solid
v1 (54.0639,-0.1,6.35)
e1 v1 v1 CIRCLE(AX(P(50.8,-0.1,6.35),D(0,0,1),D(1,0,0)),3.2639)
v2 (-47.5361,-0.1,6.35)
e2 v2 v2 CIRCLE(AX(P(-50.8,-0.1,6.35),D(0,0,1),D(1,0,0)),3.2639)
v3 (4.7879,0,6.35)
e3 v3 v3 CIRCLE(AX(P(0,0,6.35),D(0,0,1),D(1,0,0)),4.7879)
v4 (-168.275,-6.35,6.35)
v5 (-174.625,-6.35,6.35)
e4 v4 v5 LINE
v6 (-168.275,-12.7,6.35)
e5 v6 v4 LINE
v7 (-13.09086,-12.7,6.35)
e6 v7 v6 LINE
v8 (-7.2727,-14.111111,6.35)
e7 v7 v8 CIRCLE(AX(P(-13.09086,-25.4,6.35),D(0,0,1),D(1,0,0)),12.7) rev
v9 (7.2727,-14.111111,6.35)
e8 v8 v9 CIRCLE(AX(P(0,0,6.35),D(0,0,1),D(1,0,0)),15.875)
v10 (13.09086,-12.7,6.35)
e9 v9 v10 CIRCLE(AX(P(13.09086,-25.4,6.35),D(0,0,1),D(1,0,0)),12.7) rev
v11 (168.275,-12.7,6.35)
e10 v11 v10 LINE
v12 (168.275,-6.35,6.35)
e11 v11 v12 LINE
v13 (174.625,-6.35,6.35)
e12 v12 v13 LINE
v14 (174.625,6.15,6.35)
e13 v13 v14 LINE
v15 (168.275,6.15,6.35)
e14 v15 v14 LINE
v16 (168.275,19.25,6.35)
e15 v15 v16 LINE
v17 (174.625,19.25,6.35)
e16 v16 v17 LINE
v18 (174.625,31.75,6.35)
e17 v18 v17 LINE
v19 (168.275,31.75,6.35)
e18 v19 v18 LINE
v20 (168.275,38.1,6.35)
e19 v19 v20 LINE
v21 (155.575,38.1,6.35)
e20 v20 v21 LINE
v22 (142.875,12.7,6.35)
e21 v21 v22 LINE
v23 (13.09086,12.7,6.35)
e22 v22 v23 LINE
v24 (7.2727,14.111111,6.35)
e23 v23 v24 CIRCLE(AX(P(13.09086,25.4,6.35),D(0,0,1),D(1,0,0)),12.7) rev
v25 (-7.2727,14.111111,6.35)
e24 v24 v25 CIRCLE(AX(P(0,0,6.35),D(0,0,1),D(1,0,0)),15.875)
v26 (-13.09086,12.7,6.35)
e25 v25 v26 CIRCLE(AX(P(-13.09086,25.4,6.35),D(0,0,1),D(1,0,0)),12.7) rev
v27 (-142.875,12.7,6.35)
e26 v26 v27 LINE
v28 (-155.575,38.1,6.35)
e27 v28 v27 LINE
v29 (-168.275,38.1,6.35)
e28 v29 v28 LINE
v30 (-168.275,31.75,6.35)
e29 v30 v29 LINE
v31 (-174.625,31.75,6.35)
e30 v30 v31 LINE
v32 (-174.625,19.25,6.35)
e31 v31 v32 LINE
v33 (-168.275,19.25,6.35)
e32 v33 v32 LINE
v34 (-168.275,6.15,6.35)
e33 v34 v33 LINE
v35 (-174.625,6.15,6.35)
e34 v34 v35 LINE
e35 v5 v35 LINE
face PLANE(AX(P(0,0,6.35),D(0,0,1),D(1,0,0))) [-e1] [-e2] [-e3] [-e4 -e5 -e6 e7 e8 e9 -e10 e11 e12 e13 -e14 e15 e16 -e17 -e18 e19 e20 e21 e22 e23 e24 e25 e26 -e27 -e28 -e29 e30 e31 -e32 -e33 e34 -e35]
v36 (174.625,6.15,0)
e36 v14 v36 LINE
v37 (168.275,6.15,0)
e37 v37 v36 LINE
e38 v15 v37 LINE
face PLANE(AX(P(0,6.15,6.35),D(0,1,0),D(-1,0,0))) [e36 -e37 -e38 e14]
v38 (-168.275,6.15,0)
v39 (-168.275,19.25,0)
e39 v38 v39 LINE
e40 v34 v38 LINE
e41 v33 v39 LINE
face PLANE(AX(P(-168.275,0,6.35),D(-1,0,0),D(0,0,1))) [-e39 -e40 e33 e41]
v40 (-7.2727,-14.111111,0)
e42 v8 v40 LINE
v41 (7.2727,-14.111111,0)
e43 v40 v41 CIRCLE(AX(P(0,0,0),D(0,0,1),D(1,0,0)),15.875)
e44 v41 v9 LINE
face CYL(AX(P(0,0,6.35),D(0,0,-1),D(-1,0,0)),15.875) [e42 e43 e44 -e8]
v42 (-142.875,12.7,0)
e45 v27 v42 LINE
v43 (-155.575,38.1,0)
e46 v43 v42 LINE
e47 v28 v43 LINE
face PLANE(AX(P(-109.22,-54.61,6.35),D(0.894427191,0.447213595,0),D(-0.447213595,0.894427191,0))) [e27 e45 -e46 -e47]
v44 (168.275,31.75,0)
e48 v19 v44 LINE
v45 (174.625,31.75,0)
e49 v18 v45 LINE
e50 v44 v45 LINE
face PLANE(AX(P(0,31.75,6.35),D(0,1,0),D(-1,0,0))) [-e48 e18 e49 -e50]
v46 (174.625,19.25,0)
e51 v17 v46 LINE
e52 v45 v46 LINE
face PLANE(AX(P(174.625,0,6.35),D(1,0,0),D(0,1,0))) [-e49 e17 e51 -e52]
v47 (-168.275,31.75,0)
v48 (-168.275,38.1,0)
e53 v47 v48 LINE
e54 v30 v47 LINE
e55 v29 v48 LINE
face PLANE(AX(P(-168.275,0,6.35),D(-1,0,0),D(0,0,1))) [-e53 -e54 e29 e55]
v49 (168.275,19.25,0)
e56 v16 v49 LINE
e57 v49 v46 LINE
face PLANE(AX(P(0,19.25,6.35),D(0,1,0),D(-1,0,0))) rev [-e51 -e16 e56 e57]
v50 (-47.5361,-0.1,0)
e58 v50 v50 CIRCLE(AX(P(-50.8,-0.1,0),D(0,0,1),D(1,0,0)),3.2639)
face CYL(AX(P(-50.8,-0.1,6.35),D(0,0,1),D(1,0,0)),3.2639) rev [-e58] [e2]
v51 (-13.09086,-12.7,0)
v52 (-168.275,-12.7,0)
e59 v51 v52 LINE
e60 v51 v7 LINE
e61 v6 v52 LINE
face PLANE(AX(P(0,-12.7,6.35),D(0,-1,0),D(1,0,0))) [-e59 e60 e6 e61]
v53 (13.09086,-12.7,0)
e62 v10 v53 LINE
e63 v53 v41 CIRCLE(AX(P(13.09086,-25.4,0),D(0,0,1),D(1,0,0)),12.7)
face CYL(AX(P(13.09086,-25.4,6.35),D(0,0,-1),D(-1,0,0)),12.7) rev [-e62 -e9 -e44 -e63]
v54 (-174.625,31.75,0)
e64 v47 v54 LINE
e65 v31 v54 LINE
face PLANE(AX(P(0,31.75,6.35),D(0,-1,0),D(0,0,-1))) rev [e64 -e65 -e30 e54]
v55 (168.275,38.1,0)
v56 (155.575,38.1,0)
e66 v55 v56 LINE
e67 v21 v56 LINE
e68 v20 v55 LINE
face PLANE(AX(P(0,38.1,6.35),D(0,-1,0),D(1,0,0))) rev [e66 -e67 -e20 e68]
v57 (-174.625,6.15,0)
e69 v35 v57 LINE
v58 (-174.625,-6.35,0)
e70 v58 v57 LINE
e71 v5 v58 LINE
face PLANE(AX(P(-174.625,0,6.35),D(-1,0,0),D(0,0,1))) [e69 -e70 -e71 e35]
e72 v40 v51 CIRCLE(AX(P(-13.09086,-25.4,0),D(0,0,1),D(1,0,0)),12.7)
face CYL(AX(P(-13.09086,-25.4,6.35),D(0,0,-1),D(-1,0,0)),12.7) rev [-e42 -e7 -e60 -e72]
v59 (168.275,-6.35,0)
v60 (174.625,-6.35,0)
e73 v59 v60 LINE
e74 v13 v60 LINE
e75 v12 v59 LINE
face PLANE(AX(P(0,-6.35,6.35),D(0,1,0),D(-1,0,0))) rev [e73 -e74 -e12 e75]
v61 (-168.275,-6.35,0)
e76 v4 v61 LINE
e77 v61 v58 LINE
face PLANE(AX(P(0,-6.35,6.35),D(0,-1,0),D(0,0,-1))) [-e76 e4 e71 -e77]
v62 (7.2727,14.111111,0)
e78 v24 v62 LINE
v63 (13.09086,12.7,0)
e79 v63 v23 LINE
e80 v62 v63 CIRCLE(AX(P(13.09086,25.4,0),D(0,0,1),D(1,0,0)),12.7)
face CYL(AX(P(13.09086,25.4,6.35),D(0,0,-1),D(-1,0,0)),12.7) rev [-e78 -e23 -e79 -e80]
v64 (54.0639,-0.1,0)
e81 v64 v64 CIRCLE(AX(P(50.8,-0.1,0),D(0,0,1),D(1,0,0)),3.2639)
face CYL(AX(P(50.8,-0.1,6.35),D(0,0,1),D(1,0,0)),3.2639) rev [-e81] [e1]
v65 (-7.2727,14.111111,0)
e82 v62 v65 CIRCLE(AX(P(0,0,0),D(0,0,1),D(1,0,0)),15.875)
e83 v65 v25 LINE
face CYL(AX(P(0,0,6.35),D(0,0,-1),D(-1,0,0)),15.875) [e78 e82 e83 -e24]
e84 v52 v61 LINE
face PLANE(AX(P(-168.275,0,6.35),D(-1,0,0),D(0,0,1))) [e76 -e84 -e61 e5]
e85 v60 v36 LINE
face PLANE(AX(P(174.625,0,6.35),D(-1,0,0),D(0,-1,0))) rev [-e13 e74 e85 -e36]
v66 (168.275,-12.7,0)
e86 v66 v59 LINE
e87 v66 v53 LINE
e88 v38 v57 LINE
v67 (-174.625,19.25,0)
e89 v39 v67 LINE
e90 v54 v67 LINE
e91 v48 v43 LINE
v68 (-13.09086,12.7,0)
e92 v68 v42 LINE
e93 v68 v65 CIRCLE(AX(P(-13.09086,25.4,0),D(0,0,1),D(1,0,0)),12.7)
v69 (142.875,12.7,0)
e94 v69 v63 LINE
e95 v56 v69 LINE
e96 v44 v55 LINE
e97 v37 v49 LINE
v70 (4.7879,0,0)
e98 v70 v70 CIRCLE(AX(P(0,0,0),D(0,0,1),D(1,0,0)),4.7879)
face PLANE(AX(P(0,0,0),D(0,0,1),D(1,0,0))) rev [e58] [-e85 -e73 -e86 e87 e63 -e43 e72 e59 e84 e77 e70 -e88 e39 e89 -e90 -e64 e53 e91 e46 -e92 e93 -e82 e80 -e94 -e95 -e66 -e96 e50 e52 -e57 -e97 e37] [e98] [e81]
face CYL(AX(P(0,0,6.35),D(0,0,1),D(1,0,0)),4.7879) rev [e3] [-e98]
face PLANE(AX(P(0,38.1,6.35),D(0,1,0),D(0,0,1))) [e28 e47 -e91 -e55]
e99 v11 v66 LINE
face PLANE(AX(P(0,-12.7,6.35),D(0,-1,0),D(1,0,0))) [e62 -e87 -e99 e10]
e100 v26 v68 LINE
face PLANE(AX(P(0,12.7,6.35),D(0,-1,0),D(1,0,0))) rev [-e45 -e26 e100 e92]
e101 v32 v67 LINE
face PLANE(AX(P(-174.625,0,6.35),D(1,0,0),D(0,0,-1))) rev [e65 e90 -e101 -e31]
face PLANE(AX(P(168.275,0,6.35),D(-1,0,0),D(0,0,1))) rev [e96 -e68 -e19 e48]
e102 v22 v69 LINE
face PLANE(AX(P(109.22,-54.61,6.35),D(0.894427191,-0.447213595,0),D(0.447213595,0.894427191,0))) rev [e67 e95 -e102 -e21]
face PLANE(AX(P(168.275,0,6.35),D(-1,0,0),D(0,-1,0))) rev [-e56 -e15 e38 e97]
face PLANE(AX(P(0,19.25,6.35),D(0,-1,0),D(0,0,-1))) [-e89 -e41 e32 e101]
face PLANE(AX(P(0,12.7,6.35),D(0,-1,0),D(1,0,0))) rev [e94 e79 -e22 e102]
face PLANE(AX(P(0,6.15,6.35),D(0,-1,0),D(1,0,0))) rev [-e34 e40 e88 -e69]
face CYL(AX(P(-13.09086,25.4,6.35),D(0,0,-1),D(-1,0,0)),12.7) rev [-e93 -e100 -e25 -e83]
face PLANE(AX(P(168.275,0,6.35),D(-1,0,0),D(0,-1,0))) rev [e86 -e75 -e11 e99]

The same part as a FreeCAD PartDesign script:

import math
import FreeCAD as App
import Part
import Sketcher

V = App.Vector
Q = App.Units.Quantity


def edges_at(feature, points):
    """Names of the edges that pass closest to the given points."""
    edges = feature.Shape.Edges
    near = lambda p: min(range(len(edges)), key=lambda i: edges[i].distToShape(Part.Vertex(*p))[0])
    return sorted({f"Edge{near(p) + 1}" for p in points})

doc = App.newDocument("Part")
params = doc.addObject("Spreadsheet::Sheet", "Params")
for row, (alias, value) in enumerate([
    ("sketch1_width", "0.5 in"),
    ("sketch1_radius", "0.625 in"),
    ("sketch1_width2", "0.25 in"),
    ("pad1_length", "0.25 in"),
    ("sketch2_diameter", "0.377 in"),
    ("hole_diameter", "0.377 in"),
    ("fillet_radius", "0.5 in"),
    ("sketch3_diameter", "0.257 in"),
    ("hole2_diameter", "0.257 in"),
], start=1):
    params.set(f"A{row}", alias)
    params.set(f"B{row}", "=" + value)
    params.setAlias(f"B{row}", alias)

body = doc.addObject("PartDesign::Body", "Body")

# Sketch on XY plane
sketch1 = doc.addObject("Sketcher::SketchObject", "Sketch")
body.addObject(sketch1)
sketch1.AttachmentSupport = (doc.XY_Plane, [""])
sketch1.MapMode = "FlatFace"
sketch1.addGeometry(Part.LineSegment(V(-168, -6, 0), V(-168, -13, 0)), False)
sketch1.addGeometry(Part.LineSegment(V(-168, -13, 0), V(-10, -13, 0)), False)
sketch1.addGeometry(Part.ArcOfCircle(Part.Circle(V(0, 0, 0), V(0, 0, 1), 16), math.radians(-127), math.radians(-53)), False)
sketch1.addGeometry(Part.LineSegment(V(10, -13, 0), V(168, -13, 0)), False)
sketch1.addGeometry(Part.LineSegment(V(168, -13, 0), V(168, -6, 0)), False)
sketch1.addGeometry(Part.LineSegment(V(168, -6, 0), V(175, -6, 0)), False)
sketch1.addGeometry(Part.LineSegment(V(175, -6, 0), V(175, 6, 0)), False)
sketch1.addGeometry(Part.LineSegment(V(175, 6, 0), V(168, 6, 0)), False)
sketch1.addGeometry(Part.LineSegment(V(168, 6, 0), V(168, 19, 0)), False)
sketch1.addGeometry(Part.LineSegment(V(168, 19, 0), V(175, 19, 0)), False)
sketch1.addGeometry(Part.LineSegment(V(175, 19, 0), V(175, 32, 0)), False)
sketch1.addGeometry(Part.LineSegment(V(175, 32, 0), V(168, 32, 0)), False)
sketch1.addGeometry(Part.LineSegment(V(168, 32, 0), V(168, 38, 0)), False)
sketch1.addGeometry(Part.LineSegment(V(168, 38, 0), V(156, 38, 0)), False)
sketch1.addGeometry(Part.LineSegment(V(156, 38, 0), V(143, 13, 0)), False)
sketch1.addGeometry(Part.LineSegment(V(143, 13, 0), V(10, 13, 0)), False)
sketch1.addGeometry(Part.ArcOfCircle(Part.Circle(V(0, 0, 0), V(0, 0, 1), 16), math.radians(53), math.radians(127)), False)
sketch1.addGeometry(Part.LineSegment(V(-10, 13, 0), V(-143, 13, 0)), False)
sketch1.addGeometry(Part.LineSegment(V(-143, 13, 0), V(-156, 38, 0)), False)
sketch1.addGeometry(Part.LineSegment(V(-156, 38, 0), V(-168, 38, 0)), False)
sketch1.addGeometry(Part.LineSegment(V(-168, 38, 0), V(-168, 32, 0)), False)
sketch1.addGeometry(Part.LineSegment(V(-168, 32, 0), V(-175, 32, 0)), False)
sketch1.addGeometry(Part.LineSegment(V(-175, 32, 0), V(-175, 19, 0)), False)
sketch1.addGeometry(Part.LineSegment(V(-175, 19, 0), V(-168, 19, 0)), False)
sketch1.addGeometry(Part.LineSegment(V(-168, 19, 0), V(-168, 6, 0)), False)
sketch1.addGeometry(Part.LineSegment(V(-168, 6, 0), V(-175, 6, 0)), False)
sketch1.addGeometry(Part.LineSegment(V(-175, 6, 0), V(-175, -6, 0)), False)
sketch1.addGeometry(Part.LineSegment(V(-175, -6, 0), V(-168, -6, 0)), False)
sketch1.addConstraint(Sketcher.Constraint("Coincident", 0, 2, 1, 1))
sketch1.addConstraint(Sketcher.Constraint("Coincident", 1, 2, 2, 1))
sketch1.addConstraint(Sketcher.Constraint("Coincident", 2, 2, 3, 1))
sketch1.addConstraint(Sketcher.Constraint("Coincident", 3, 2, 4, 1))
sketch1.addConstraint(Sketcher.Constraint("Coincident", 4, 2, 5, 1))
sketch1.addConstraint(Sketcher.Constraint("Coincident", 5, 2, 6, 1))
sketch1.addConstraint(Sketcher.Constraint("Coincident", 6, 2, 7, 1))
sketch1.addConstraint(Sketcher.Constraint("Coincident", 7, 2, 8, 1))
sketch1.addConstraint(Sketcher.Constraint("Coincident", 8, 2, 9, 1))
sketch1.addConstraint(Sketcher.Constraint("Coincident", 9, 2, 10, 1))
sketch1.addConstraint(Sketcher.Constraint("Coincident", 10, 2, 11, 1))
sketch1.addConstraint(Sketcher.Constraint("Coincident", 11, 2, 12, 1))
sketch1.addConstraint(Sketcher.Constraint("Coincident", 12, 2, 13, 1))
sketch1.addConstraint(Sketcher.Constraint("Coincident", 13, 2, 14, 1))
sketch1.addConstraint(Sketcher.Constraint("Coincident", 14, 2, 15, 1))
sketch1.addConstraint(Sketcher.Constraint("Coincident", 15, 2, 16, 1))
sketch1.addConstraint(Sketcher.Constraint("Coincident", 16, 2, 17, 1))
sketch1.addConstraint(Sketcher.Constraint("Coincident", 17, 2, 18, 1))
sketch1.addConstraint(Sketcher.Constraint("Coincident", 18, 2, 19, 1))
sketch1.addConstraint(Sketcher.Constraint("Coincident", 19, 2, 20, 1))
sketch1.addConstraint(Sketcher.Constraint("Coincident", 20, 2, 21, 1))
sketch1.addConstraint(Sketcher.Constraint("Coincident", 21, 2, 22, 1))
sketch1.addConstraint(Sketcher.Constraint("Coincident", 22, 2, 23, 1))
sketch1.addConstraint(Sketcher.Constraint("Coincident", 23, 2, 24, 1))
sketch1.addConstraint(Sketcher.Constraint("Coincident", 24, 2, 25, 1))
sketch1.addConstraint(Sketcher.Constraint("Coincident", 25, 2, 26, 1))
sketch1.addConstraint(Sketcher.Constraint("Coincident", 26, 2, 27, 1))
sketch1.addConstraint(Sketcher.Constraint("Coincident", 27, 2, 0, 1))
sketch1.addConstraint(Sketcher.Constraint("Vertical", 0))
sketch1.addConstraint(Sketcher.Constraint("Horizontal", 1))
sketch1.addConstraint(Sketcher.Constraint("Horizontal", 3))
sketch1.addConstraint(Sketcher.Constraint("Vertical", 4))
sketch1.addConstraint(Sketcher.Constraint("Horizontal", 5))
sketch1.addConstraint(Sketcher.Constraint("Vertical", 6))
sketch1.addConstraint(Sketcher.Constraint("Horizontal", 7))
sketch1.addConstraint(Sketcher.Constraint("Vertical", 8))
sketch1.addConstraint(Sketcher.Constraint("Horizontal", 9))
sketch1.addConstraint(Sketcher.Constraint("Vertical", 10))
sketch1.addConstraint(Sketcher.Constraint("Horizontal", 11))
sketch1.addConstraint(Sketcher.Constraint("Vertical", 12))
sketch1.addConstraint(Sketcher.Constraint("Horizontal", 13))
sketch1.addConstraint(Sketcher.Constraint("Horizontal", 15))
sketch1.addConstraint(Sketcher.Constraint("Horizontal", 17))
sketch1.addConstraint(Sketcher.Constraint("Horizontal", 19))
sketch1.addConstraint(Sketcher.Constraint("Vertical", 20))
sketch1.addConstraint(Sketcher.Constraint("Horizontal", 21))
sketch1.addConstraint(Sketcher.Constraint("Vertical", 22))
sketch1.addConstraint(Sketcher.Constraint("Horizontal", 23))
sketch1.addConstraint(Sketcher.Constraint("Vertical", 24))
sketch1.addConstraint(Sketcher.Constraint("Horizontal", 25))
sketch1.addConstraint(Sketcher.Constraint("Vertical", 26))
sketch1.addConstraint(Sketcher.Constraint("Horizontal", 27))
sketch1.addConstraint(Sketcher.Constraint("Coincident", 2, 3, -1, 1))
sketch1.addConstraint(Sketcher.Constraint("Coincident", 16, 3, -1, 1))
sketch1.addConstraint(Sketcher.Constraint("Equal", 2, 16))
sketch1.addConstraint(Sketcher.Constraint("Symmetric", 0, 2, 3, 2, -2))
sketch1.addConstraint(Sketcher.Constraint("Symmetric", 14, 2, 17, 2, -2))
sketch1.addConstraint(Sketcher.Constraint("Symmetric", 13, 2, 18, 2, -2))
sketch1.addConstraint(Sketcher.Constraint("Symmetric", 11, 2, 20, 2, -2))
sketch1.addConstraint(Sketcher.Constraint("Symmetric", 9, 2, 22, 2, -2))
sketch1.addConstraint(Sketcher.Constraint("Symmetric", 7, 2, 24, 2, -2))
sketch1.addConstraint(Sketcher.Constraint("Symmetric", 5, 2, 26, 2, -2))
sketch1.addConstraint(Sketcher.Constraint("Vertical", 4, 2, 7, 2))
sketch1.addConstraint(Sketcher.Constraint("Vertical", 6, 2, 9, 2))
sketch1.addConstraint(Sketcher.Constraint("Vertical", 8, 2, 11, 2))
sketch1.addConstraint(Sketcher.Constraint("Vertical", 2, 2, 15, 2))
sketch1.addConstraint(Sketcher.Constraint("Equal", 27, 0))
sketch1.addConstraint(Sketcher.Constraint("Equal", 6, 10))
sketch1.addConstraint(Sketcher.Constraint("Equal", 4, 12))
sketch1.addConstraint(Sketcher.Constraint("DistanceX", 13, 2, 13, 1, Q("0.5 in")))
sketch1.addConstraint(Sketcher.Constraint("Radius", 2, Q("0.625 in")))
sketch1.addConstraint(Sketcher.Constraint("DistanceX", 0, 2, 2, 2, Q("7 in")))
sketch1.addConstraint(Sketcher.Constraint("DistanceX", 14, 2, 7, 2, Q("1 in")))
sketch1.addConstraint(Sketcher.Constraint("DistanceY", 14, 2, 13, 2, Q("1 in")))
sketch1.addConstraint(Sketcher.Constraint("DistanceY", 2, 2, 15, 2, Q("1 in")))
sketch1.addConstraint(Sketcher.Constraint("DistanceX", 5, 1, 5, 2, Q("0.25 in")))
sketch1.addConstraint(Sketcher.Constraint("DistanceY", 6, 1, 6, 2, 12.5))
sketch1.setExpression("Constraints[69]", "Params.sketch1_width")
sketch1.setExpression("Constraints[70]", "Params.sketch1_radius")
sketch1.setExpression("Constraints[75]", "Params.sketch1_width2")
pad1 = doc.addObject("PartDesign::Pad", "Pad")
body.addObject(pad1)
pad1.Profile = sketch1
pad1.setExpression("Length", "Params.pad1_length")

# Sketch on XY plane
sketch2 = doc.addObject("Sketcher::SketchObject", "Sketch001")
body.addObject(sketch2)
sketch2.AttachmentSupport = (doc.XY_Plane, [""])
sketch2.MapMode = "FlatFace"
sketch2.AttachmentOffset = App.Placement(V(0, 0, 0.25 * 25.4), App.Rotation())
sketch2.addGeometry(Part.Circle(V(0, 0, 0), V(0, 0, 1), 4.8), False)
sketch2.addConstraint(Sketcher.Constraint("Coincident", 0, 3, -1, 1))
sketch2.addConstraint(Sketcher.Constraint("Diameter", 0, Q("0.377 in")))
sketch2.setExpression("Constraints[1]", "Params.sketch2_diameter")
doc.recompute()
hole = doc.addObject("PartDesign::Hole", "Hole")
body.addObject(hole)
hole.Profile = sketch2
hole.ThreadType = "None"
hole.setExpression("Diameter", "Params.hole_diameter")
hole.DepthType = "ThroughAll"
doc.recompute()

fillet = doc.addObject("PartDesign::Fillet", "Fillet")
body.addObject(fillet)
fillet.Base = (hole, edges_at(hole, [
    (-9.525, 12.7, 3.175),
    (9.525, 12.7, 3.175),
    (9.525, -12.7, 3.175),
    (-9.525, -12.7, 3.175),
]))
fillet.setExpression("Radius", "Params.fillet_radius")

# Sketch on XY plane
sketch3 = doc.addObject("Sketcher::SketchObject", "Sketch002")
body.addObject(sketch3)
sketch3.AttachmentSupport = (doc.XY_Plane, [""])
sketch3.MapMode = "FlatFace"
sketch3.AttachmentOffset = App.Placement(V(0, 0, 0.25 * 25.4), App.Rotation())
sketch3.addGeometry(Part.Circle(V(-50.8, -0.1, 0), V(0, 0, 1), 3.3), False)
sketch3.addGeometry(Part.Circle(V(50.8, -0.1, 0), V(0, 0, 1), 3.3), False)
sketch3.addConstraint(Sketcher.Constraint("Equal", 0, 1))
sketch3.addConstraint(Sketcher.Constraint("Symmetric", 0, 3, 1, 3, -2))
sketch3.addConstraint(Sketcher.Constraint("Diameter", 0, Q("0.257 in")))
sketch3.addConstraint(Sketcher.Constraint("DistanceX", 0, 3, -1, 1, Q("2 in")))
sketch3.addConstraint(Sketcher.Constraint("DistanceY", 0, 3, -1, 1, 0.1))
sketch3.setExpression("Constraints[2]", "Params.sketch3_diameter")
doc.recompute()
hole2 = doc.addObject("PartDesign::Hole", "Hole001")
body.addObject(hole2)
hole2.Profile = sketch3
hole2.ThreadType = "None"
hole2.setExpression("Diameter", "Params.hole2_diameter")
hole2.DepthType = "ThroughAll"

doc.recompute()
